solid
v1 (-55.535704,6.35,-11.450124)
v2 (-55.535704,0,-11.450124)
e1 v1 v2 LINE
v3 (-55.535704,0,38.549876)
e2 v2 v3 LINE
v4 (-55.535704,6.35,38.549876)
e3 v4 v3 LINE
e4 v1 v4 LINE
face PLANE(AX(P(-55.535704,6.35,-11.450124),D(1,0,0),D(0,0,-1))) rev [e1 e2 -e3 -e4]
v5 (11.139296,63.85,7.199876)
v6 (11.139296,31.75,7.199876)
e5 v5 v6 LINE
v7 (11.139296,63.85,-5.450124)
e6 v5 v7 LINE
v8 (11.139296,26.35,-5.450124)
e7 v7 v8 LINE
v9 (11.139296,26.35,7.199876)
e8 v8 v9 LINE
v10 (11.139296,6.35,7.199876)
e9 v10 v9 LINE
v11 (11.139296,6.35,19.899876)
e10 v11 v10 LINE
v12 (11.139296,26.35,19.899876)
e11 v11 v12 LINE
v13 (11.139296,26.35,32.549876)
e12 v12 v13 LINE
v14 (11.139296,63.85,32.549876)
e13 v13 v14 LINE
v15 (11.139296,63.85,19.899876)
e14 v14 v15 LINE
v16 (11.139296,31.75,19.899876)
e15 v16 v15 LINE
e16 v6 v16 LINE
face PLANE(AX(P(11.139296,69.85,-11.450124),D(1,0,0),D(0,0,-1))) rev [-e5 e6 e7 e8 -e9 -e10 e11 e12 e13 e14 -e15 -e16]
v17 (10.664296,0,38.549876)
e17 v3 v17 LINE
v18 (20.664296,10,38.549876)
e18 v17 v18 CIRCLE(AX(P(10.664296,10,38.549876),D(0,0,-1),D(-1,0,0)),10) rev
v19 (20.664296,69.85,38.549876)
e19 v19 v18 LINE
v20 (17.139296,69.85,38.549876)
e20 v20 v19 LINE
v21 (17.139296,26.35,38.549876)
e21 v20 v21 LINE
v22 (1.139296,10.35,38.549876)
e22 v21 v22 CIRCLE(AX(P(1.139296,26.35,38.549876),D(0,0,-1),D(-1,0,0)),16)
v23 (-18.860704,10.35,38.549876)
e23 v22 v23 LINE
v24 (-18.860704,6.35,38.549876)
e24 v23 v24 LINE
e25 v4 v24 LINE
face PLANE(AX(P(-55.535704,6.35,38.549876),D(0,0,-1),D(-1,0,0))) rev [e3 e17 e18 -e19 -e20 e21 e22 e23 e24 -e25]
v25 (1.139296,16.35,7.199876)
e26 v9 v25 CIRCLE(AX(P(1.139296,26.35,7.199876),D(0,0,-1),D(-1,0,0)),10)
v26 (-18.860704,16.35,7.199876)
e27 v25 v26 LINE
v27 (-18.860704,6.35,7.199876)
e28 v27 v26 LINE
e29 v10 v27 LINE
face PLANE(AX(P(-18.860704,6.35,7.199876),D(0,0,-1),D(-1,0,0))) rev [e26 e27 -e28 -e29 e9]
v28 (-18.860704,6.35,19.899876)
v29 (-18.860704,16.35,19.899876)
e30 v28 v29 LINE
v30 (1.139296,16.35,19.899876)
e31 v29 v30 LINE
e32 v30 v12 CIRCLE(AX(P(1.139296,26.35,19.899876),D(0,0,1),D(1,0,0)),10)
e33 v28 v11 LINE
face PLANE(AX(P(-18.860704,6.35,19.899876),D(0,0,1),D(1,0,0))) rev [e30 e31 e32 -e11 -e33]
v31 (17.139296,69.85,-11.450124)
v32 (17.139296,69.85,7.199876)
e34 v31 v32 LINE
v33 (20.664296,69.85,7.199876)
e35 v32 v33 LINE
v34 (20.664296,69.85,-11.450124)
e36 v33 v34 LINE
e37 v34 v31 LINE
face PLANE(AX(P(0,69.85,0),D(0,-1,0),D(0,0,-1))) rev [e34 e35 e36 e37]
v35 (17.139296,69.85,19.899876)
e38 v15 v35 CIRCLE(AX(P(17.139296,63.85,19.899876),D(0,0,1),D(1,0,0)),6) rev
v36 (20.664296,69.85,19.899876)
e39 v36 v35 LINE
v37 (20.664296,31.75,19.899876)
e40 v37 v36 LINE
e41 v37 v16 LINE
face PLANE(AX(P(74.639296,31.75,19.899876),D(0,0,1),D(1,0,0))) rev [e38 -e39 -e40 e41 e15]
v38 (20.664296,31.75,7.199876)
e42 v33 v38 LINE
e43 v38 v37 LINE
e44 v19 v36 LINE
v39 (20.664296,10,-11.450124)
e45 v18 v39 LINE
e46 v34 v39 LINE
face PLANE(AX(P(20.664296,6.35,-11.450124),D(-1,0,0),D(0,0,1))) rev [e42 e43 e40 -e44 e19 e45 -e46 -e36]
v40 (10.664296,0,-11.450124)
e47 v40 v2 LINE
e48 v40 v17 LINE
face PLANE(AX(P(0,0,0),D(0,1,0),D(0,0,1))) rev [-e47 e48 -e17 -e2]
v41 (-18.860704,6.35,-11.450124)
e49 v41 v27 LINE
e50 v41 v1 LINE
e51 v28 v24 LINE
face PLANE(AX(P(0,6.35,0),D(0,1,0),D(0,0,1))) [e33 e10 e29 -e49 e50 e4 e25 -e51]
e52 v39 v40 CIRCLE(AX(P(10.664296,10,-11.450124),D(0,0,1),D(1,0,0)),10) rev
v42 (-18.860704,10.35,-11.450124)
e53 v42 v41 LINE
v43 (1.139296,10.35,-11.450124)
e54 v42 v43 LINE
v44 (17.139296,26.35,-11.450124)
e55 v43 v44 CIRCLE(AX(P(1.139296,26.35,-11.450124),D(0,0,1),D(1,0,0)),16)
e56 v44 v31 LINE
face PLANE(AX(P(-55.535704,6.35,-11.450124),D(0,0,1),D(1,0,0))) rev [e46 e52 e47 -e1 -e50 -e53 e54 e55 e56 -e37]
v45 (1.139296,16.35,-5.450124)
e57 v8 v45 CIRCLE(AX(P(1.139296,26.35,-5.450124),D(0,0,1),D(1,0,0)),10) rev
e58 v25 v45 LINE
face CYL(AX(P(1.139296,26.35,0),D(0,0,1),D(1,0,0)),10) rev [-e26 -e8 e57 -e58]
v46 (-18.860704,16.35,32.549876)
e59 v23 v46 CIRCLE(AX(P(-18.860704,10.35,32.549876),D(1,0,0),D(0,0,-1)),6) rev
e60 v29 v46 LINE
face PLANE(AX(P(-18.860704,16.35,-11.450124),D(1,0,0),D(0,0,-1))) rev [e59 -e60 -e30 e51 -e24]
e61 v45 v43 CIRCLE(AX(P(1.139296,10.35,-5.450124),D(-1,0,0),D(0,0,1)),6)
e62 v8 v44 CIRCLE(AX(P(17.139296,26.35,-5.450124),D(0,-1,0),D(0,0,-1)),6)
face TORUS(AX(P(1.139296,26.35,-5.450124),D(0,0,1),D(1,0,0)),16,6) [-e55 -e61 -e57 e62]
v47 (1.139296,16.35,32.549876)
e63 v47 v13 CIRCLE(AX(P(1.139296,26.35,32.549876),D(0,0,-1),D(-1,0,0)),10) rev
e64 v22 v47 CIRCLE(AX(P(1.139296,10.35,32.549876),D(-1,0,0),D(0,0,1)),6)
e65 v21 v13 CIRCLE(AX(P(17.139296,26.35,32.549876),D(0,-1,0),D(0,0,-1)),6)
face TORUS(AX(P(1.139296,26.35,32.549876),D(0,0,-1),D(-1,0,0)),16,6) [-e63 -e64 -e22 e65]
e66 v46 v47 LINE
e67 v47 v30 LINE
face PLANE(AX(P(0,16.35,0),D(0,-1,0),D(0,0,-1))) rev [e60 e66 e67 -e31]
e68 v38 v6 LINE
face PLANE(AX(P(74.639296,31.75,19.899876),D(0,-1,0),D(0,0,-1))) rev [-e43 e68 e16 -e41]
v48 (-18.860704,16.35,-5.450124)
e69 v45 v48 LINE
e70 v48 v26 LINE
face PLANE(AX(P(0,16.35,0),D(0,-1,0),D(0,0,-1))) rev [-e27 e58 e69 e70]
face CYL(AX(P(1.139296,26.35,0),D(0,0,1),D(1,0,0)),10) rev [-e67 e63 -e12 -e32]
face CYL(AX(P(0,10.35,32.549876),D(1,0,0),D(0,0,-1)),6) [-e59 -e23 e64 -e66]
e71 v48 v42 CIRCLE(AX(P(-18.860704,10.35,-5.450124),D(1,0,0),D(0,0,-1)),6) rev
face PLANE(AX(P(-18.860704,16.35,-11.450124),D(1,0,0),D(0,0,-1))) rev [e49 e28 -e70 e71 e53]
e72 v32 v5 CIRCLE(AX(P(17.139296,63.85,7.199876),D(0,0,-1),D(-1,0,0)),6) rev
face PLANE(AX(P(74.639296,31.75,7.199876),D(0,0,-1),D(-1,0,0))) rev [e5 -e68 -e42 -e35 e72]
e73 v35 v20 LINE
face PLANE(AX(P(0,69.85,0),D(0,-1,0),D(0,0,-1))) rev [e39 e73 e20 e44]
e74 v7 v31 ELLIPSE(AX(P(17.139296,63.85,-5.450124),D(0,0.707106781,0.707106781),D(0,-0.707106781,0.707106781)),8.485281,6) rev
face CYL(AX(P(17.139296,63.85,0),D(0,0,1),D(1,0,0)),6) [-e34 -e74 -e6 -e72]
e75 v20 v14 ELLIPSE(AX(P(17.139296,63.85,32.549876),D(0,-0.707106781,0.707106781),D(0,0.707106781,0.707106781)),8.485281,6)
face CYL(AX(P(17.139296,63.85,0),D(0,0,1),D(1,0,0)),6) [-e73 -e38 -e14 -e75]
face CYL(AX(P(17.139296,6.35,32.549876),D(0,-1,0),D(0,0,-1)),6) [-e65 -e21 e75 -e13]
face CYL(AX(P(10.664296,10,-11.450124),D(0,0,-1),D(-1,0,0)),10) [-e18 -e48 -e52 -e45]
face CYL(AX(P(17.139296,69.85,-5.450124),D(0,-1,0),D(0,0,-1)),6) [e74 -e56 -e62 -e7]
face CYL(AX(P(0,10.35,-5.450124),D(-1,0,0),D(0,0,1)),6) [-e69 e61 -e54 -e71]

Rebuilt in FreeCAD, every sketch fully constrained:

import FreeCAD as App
import Part
import Sketcher
from FreeCAD import Vector
Q = App.Units.Quantity


def edges_at(feature, points):
    """Names of the edges that pass closest to the given points."""
    edges = feature.Shape.Edges
    near = lambda p: min(range(len(edges)), key=lambda i: edges[i].distToShape(Part.Vertex(*p))[0])
    return sorted({f"Edge{near(p) + 1}" for p in points})

doc = App.newDocument("Part")
body = doc.addObject("PartDesign::Body", "Body")

# Sketch on XZ plane
sketch1 = doc.addObject("Sketcher::SketchObject", "Sketch")
body.addObject(sketch1)
sketch1.AttachmentSupport = (doc.XZ_Plane, [""])
sketch1.MapMode = "FlatFace"
sketch1.addGeometry([
    Part.LineSegment(Vector(-56, -11, 0), Vector(-56, 39, 0)),
    Part.LineSegment(Vector(-56, 39, 0), Vector(21, 39, 0)),
    Part.LineSegment(Vector(21, 39, 0), Vector(21, -11, 0)),
    Part.LineSegment(Vector(21, -11, 0), Vector(-56, -11, 0)),
], False)
sketch1.addConstraint([
    Sketcher.Constraint("Coincident", 0, 2, 1, 1),
    Sketcher.Constraint("Coincident", 1, 2, 2, 1),
    Sketcher.Constraint("Coincident", 2, 2, 3, 1),
    Sketcher.Constraint("Coincident", 3, 2, 0, 1),
    Sketcher.Constraint("Vertical", 0),
    Sketcher.Constraint("Horizontal", 1),
    Sketcher.Constraint("Vertical", 2),
    Sketcher.Constraint("Horizontal", 3),
    Sketcher.Constraint("DistanceX", 1, 1, 1, 2, Q("3 in")),
    Sketcher.Constraint("DistanceY", 0, 1, 0, 2, 50.0),
    Sketcher.Constraint("DistanceX", 0, 2, -1, 1, 55.535704),
    Sketcher.Constraint("DistanceY", -1, 1, 0, 2, 38.549876),
])
pad1 = doc.addObject("PartDesign::Pad", "Pad")
body.addObject(pad1)
pad1.Profile = sketch1
pad1.Length = Q("0.25 in")
pad1.Reversed = True

# Sketch on XZ plane
sketch2 = doc.addObject("Sketcher::SketchObject", "Sketch001")
body.addObject(sketch2)
sketch2.AttachmentSupport = (doc.XZ_Plane, [""])
sketch2.MapMode = "FlatFace"
sketch2.AttachmentOffset = App.Placement(Vector(0, 0, -0.25 * 25.4), App.Rotation())
sketch2.addGeometry([
    Part.LineSegment(Vector(11, -11, 0), Vector(11, 39, 0)),
    Part.LineSegment(Vector(11, 39, 0), Vector(21, 39, 0)),
    Part.LineSegment(Vector(21, 39, 0), Vector(21, -11, 0)),
    Part.LineSegment(Vector(21, -11, 0), Vector(11, -11, 0)),
], False)
sketch2.addConstraint([
    Sketcher.Constraint("Coincident", 0, 2, 1, 1),
    Sketcher.Constraint("Coincident", 1, 2, 2, 1),
    Sketcher.Constraint("Coincident", 2, 2, 3, 1),
    Sketcher.Constraint("Coincident", 3, 2, 0, 1),
    Sketcher.Constraint("Vertical", 0),
    Sketcher.Constraint("Horizontal", 1),
    Sketcher.Constraint("Vertical", 2),
    Sketcher.Constraint("Horizontal", 3),
    Sketcher.Constraint("DistanceX", 1, 1, 1, 2, Q("0.375 in")),
    Sketcher.Constraint("DistanceY", 0, 1, 0, 2, 50.0),
    Sketcher.Constraint("DistanceX", -1, 1, 0, 2, 11.139296),
    Sketcher.Constraint("DistanceY", -1, 1, 0, 2, 38.549876),
])
pad2 = doc.addObject("PartDesign::Pad", "Pad001")
body.addObject(pad2)
pad2.Profile = sketch2
pad2.Length = Q("2.5 in")
pad2.Reversed = True

# Sketch on YZ plane
sketch3 = doc.addObject("Sketcher::SketchObject", "Sketch002")
body.addObject(sketch3)
sketch3.AttachmentSupport = (doc.YZ_Plane, [""])
sketch3.MapMode = "FlatFace"
sketch3.AttachmentOffset = App.Placement(Vector(0, 0, 11.139296), App.Rotation())
sketch3.addGeometry([
    Part.LineSegment(Vector(70, 7, 0), Vector(32, 7, 0)),
    Part.LineSegment(Vector(32, 7, 0), Vector(32, 20, 0)),
    Part.LineSegment(Vector(32, 20, 0), Vector(70, 20, 0)),
    Part.LineSegment(Vector(70, 20, 0), Vector(70, 7, 0)),
], False)
sketch3.addConstraint([
    Sketcher.Constraint("Coincident", 0, 2, 1, 1),
    Sketcher.Constraint("Coincident", 1, 2, 2, 1),
    Sketcher.Constraint("Coincident", 2, 2, 3, 1),
    Sketcher.Constraint("Coincident", 3, 2, 0, 1),
    Sketcher.Constraint("Horizontal", 0),
    Sketcher.Constraint("Vertical", 1),
    Sketcher.Constraint("Horizontal", 2),
    Sketcher.Constraint("Vertical", 3),
    Sketcher.Constraint("DistanceX", 0, 2, 0, 1, Q("1.5 in")),
    Sketcher.Constraint("DistanceY", 1, 1, 1, 2, Q("0.5 in")),
    Sketcher.Constraint("DistanceX", -1, 1, 0, 2, Q("1.25 in")),
    Sketcher.Constraint("DistanceY", -1, 1, 0, 2, 7.199876),
])
pocket1 = doc.addObject("PartDesign::Pocket", "Pocket")
body.addObject(pocket1)
pocket1.Profile = sketch3
pocket1.Length = Q("2.5 in")
pocket1.Reversed = True

# Sketch on XZ plane
sketch4 = doc.addObject("Sketcher::SketchObject", "Sketch003")
body.addObject(sketch4)
sketch4.AttachmentSupport = (doc.XZ_Plane, [""])
sketch4.MapMode = "FlatFace"
sketch4.AttachmentOffset = App.Placement(Vector(0, 0, -0.25 * 25.4), App.Rotation())
sketch4.addGeometry([
    Part.LineSegment(Vector(-19, -11, 0), Vector(-19, 39, 0)),
    Part.LineSegment(Vector(-19, 39, 0), Vector(11, 39, 0)),
    Part.LineSegment(Vector(11, 39, 0), Vector(11, -11, 0)),
    Part.LineSegment(Vector(11, -11, 0), Vector(-19, -11, 0)),
], False)
sketch4.addConstraint([
    Sketcher.Constraint("Coincident", 0, 2, 1, 1),
    Sketcher.Constraint("Coincident", 1, 2, 2, 1),
    Sketcher.Constraint("Coincident", 2, 2, 3, 1),
    Sketcher.Constraint("Coincident", 3, 2, 0, 1),
    Sketcher.Constraint("Vertical", 0),
    Sketcher.Constraint("Horizontal", 1),
    Sketcher.Constraint("Vertical", 2),
    Sketcher.Constraint("Horizontal", 3),
    Sketcher.Constraint("DistanceX", 1, 1, 1, 2, 30.0),
    Sketcher.Constraint("DistanceY", 0, 1, 0, 2, 50.0),
    Sketcher.Constraint("DistanceX", 0, 2, -1, 1, 18.860704),
    Sketcher.Constraint("DistanceY", -1, 1, 0, 2, 38.549876),
])
pad3 = doc.addObject("PartDesign::Pad", "Pad002")
body.addObject(pad3)
pad3.Profile = sketch4
pad3.Length = 10
pad3.Reversed = True

# Sketch on XZ plane
sketch5 = doc.addObject("Sketcher::SketchObject", "Sketch004")
body.addObject(sketch5)
sketch5.AttachmentSupport = (doc.XZ_Plane, [""])
sketch5.MapMode = "FlatFace"
sketch5.AttachmentOffset = App.Placement(Vector(0, 0, -16.35), App.Rotation())
sketch5.addGeometry([
    Part.LineSegment(Vector(-19, 7, 0), Vector(-19, 20, 0)),
    Part.LineSegment(Vector(-19, 20, 0), Vector(11, 20, 0)),
    Part.LineSegment(Vector(11, 20, 0), Vector(11, 7, 0)),
    Part.LineSegment(Vector(11, 7, 0), Vector(-19, 7, 0)),
], False)
sketch5.addConstraint([
    Sketcher.Constraint("Coincident", 0, 2, 1, 1),
    Sketcher.Constraint("Coincident", 1, 2, 2, 1),
    Sketcher.Constraint("Coincident", 2, 2, 3, 1),
    Sketcher.Constraint("Coincident", 3, 2, 0, 1),
    Sketcher.Constraint("Vertical", 0),
    Sketcher.Constraint("Horizontal", 1),
    Sketcher.Constraint("Vertical", 2),
    Sketcher.Constraint("Horizontal", 3),
    Sketcher.Constraint("DistanceY", 0, 1, 0, 2, Q("0.5 in")),
    Sketcher.Constraint("DistanceX", 1, 1, 1, 2, 30.0),
    Sketcher.Constraint("DistanceX", 0, 2, -1, 1, 18.860704),
    Sketcher.Constraint("DistanceY", -1, 1, 0, 2, 19.899876),
])
pocket2 = doc.addObject("PartDesign::Pocket", "Pocket001")
body.addObject(pocket2)
pocket2.Profile = sketch5
pocket2.Length = 10
pocket2.Reversed = True
doc.recompute()

fillet = doc.addObject("PartDesign::Fillet", "Fillet")
body.addObject(fillet)
fillet.Base = (pocket2, edges_at(pocket2, [(11.139, 16.35, 29.225), (11.139, 16.35, -2.125)]))
fillet.Radius = 10
doc.recompute()

fillet2 = doc.addObject("PartDesign::Fillet", "Fillet001")
body.addObject(fillet2)
fillet2.Base = (fillet, edges_at(fillet, [
    (11.139, 48.1, -11.45),
    (11.139, 48.1, 38.55),
    (11.139, 69.85, -2.125),
    (11.139, 69.85, 29.225),
    (-8.861, 16.35, 38.55),
    (-8.861, 16.35, -11.45),
    (8.21, 19.279, -11.45),
    (8.21, 19.279, 38.55),
]))
fillet2.Radius = 6
doc.recompute()

fillet3 = doc.addObject("PartDesign::Fillet", "Fillet002")
body.addObject(fillet3)
fillet3.Base = (fillet2, edges_at(fillet2, [(20.664, 0, 13.55)]))
fillet3.Radius = 10

doc.recompute()
